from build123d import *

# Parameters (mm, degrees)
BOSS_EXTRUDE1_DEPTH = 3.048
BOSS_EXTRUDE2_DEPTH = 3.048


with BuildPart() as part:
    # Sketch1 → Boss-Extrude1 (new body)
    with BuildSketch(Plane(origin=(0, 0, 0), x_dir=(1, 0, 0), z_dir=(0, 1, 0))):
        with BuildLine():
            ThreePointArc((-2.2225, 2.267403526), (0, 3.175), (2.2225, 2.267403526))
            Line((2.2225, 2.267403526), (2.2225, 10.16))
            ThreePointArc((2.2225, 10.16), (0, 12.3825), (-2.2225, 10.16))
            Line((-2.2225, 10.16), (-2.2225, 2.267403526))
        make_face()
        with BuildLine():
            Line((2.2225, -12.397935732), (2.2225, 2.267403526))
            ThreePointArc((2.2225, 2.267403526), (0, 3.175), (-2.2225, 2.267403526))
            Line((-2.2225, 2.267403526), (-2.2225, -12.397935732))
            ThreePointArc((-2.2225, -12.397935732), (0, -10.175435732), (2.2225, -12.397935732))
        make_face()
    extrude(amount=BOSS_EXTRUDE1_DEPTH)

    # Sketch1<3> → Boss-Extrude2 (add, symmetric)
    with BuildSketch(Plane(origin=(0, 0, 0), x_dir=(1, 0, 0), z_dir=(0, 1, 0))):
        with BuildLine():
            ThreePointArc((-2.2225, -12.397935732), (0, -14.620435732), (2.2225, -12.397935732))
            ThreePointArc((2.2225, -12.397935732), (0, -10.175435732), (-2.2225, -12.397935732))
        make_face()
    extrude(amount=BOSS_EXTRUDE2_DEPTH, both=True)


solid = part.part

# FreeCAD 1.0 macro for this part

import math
import FreeCAD as App
import Part
import Sketcher
from FreeCAD import Vector
Q = App.Units.Quantity

doc = App.newDocument("Part")
params = doc.addObject("Spreadsheet::Sheet", "Params")
for row, (alias, value) in enumerate([
    ("pad1_length", "0.12 in"),
    ("sketch2_diameter", "0.175 in"),
    ("pad2_length", "0.24 in"),
], start=1):
    params.set(f"A{row}", alias)
    params.set(f"B{row}", "=" + value)
    params.setAlias(f"B{row}", alias)

body = doc.addObject("PartDesign::Body", "Body")

# Sketch on XZ plane
sketch1 = doc.addObject("Sketcher::SketchObject", "Sketch")
body.addObject(sketch1)
sketch1.AttachmentSupport = (doc.XZ_Plane, [""])
sketch1.MapMode = "FlatFace"
sketch1.addGeometry([
    Part.ArcOfCircle(Part.Circle(Vector(0, -10.2, 0), Vector(0, 0, 1), 2.2), math.radians(180), math.radians(360)),
    Part.LineSegment(Vector(-2.2, -10.2, 0), Vector(-2.2, 12.4, 0)),
    Part.ArcOfCircle(Part.Circle(Vector(0, 12.4, 0), Vector(0, 0, 1), 2.2), math.radians(180), math.radians(360)),
    Part.LineSegment(Vector(2.2, 12.4, 0), Vector(2.2, -10.2, 0)),
], False)
sketch1.addConstraint([
    Sketcher.Constraint("Tangent", 0, 1, 1, 1),
    Sketcher.Constraint("Tangent", 1, 2, 2, 1),
    Sketcher.Constraint("Tangent", 2, 2, 3, 1),
    Sketcher.Constraint("Tangent", 3, 2, 0, 2),
    Sketcher.Constraint("Vertical", 1),
    Sketcher.Constraint("Vertical", 3),
    Sketcher.Constraint("PointOnObject", 0, 3, -2),
    Sketcher.Constraint("DistanceY", 0, 3, -1, 1, Q("0.4 in")),
    Sketcher.Constraint("Radius", 0, Q("0.0875 in")),
    Sketcher.Constraint("DistanceY", 1, 1, 1, 2, 22.557936),
])
pad1 = doc.addObject("PartDesign::Pad", "Pad")
body.addObject(pad1)
pad1.Profile = sketch1
pad1.setExpression("Length", "Params.pad1_length")
pad1.Reversed = True

# Sketch on XZ plane
sketch2 = doc.addObject("Sketcher::SketchObject", "Sketch001")
body.addObject(sketch2)
sketch2.AttachmentSupport = (doc.XZ_Plane, [""])
sketch2.MapMode = "FlatFace"
sketch2.addGeometry(Part.Circle(Vector(0, 12.4, 0), Vector(0, 0, 1), 2.2), False)
sketch2.addConstraint([
    Sketcher.Constraint("PointOnObject", 0, 3, -2),
    Sketcher.Constraint("Diameter", 0, Q("0.175 in")),
    Sketcher.Constraint("DistanceY", -1, 1, 0, 3, 12.397936),
])
sketch2.setExpression("Constraints[1]", "Params.sketch2_diameter")
pad2 = doc.addObject("PartDesign::Pad", "Pad001")
body.addObject(pad2)
pad2.Profile = sketch2
pad2.setExpression("Length", "Params.pad2_length")
pad2.Midplane = True

doc.recompute()
